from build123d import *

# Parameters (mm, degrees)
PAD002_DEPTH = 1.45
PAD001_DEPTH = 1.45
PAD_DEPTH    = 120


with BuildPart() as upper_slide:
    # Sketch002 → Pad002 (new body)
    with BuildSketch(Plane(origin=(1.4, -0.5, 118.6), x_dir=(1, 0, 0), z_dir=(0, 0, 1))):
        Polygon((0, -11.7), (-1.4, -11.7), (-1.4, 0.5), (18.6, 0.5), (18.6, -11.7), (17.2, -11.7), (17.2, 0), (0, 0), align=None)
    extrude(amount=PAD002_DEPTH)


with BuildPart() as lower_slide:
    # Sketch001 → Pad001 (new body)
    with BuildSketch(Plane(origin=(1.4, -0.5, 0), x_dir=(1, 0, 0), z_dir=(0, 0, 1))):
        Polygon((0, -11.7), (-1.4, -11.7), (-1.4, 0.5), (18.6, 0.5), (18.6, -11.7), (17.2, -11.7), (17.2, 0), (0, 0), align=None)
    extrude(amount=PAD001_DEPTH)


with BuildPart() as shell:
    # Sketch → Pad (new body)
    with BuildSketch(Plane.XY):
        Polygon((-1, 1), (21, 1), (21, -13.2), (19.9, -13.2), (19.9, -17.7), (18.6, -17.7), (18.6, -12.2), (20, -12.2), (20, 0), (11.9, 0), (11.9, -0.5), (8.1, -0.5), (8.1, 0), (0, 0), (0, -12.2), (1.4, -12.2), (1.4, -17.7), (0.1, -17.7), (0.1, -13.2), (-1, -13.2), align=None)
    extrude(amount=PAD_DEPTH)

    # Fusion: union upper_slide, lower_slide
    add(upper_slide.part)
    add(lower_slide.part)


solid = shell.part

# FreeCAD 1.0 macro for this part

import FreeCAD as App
import Part
import Sketcher

doc = App.newDocument("Part")
body = doc.addObject("PartDesign::Body", "Body")

# Sketch on XY plane
sketch1 = body.newObject("Sketcher::SketchObject", "Sketch")
sketch1.AttachmentSupport = (doc.getObject("XY_Plane"), [""])
sketch1.MapMode = "FlatFace"
sketch1.AttachmentOffset = App.Placement(App.Vector(0, 0, 118.6), App.Rotation())
sketch1.addGeometry([
    Part.LineSegment(App.Vector(0, -12.2, 0), App.Vector(1.4, -12.2, 0)),  # 0
    Part.LineSegment(App.Vector(1.4, -12.2, 0), App.Vector(1.4, -0.5, 0)),  # 1
    Part.LineSegment(App.Vector(1.4, -0.5, 0), App.Vector(18.6, -0.5, 0)),  # 2
    Part.LineSegment(App.Vector(18.6, -0.5, 0), App.Vector(18.6, -12.2, 0)),  # 3
    Part.LineSegment(App.Vector(18.6, -12.2, 0), App.Vector(20, -12.2, 0)),  # 4
    Part.LineSegment(App.Vector(20, -12.2, 0), App.Vector(20, 0, 0)),  # 5
    Part.LineSegment(App.Vector(20, 0, 0), App.Vector(0, 0, 0)),  # 6
    Part.LineSegment(App.Vector(0, 0, 0), App.Vector(0, -12.2, 0)),  # 7
], False)
sketch1.addConstraint([
    Sketcher.Constraint("Coincident", 0, 2, 1, 1),
    Sketcher.Constraint("Coincident", 1, 2, 2, 1),
    Sketcher.Constraint("Coincident", 2, 2, 3, 1),
    Sketcher.Constraint("Coincident", 3, 2, 4, 1),
    Sketcher.Constraint("Coincident", 4, 2, 5, 1),
    Sketcher.Constraint("Coincident", 5, 2, 6, 1),
    Sketcher.Constraint("Coincident", 6, 2, 7, 1),
    Sketcher.Constraint("Coincident", 7, 2, 0, 1),
    Sketcher.Constraint("Horizontal", 0),
    Sketcher.Constraint("Vertical", 1),
    Sketcher.Constraint("Horizontal", 2),
    Sketcher.Constraint("Vertical", 3),
    Sketcher.Constraint("Horizontal", 4),
    Sketcher.Constraint("Vertical", 5),
    Sketcher.Constraint("Horizontal", 6),
    Sketcher.Constraint("Vertical", 7),
    Sketcher.Constraint("Coincident", 6, 2, -1, 1),
    Sketcher.Constraint("Horizontal", 0, 2, 3, 2),
    Sketcher.Constraint("Equal", 0, 4),
    Sketcher.Constraint("DistanceX", 6, 2, 6, 1, 20.0),
    Sketcher.Constraint("DistanceX", 0, 1, 0, 2, 1.4),
    Sketcher.Constraint("DistanceY", 1, 1, 1, 2, 11.7),
    Sketcher.Constraint("DistanceY", 5, 1, 5, 2, 12.2),
])
pad1 = body.newObject("PartDesign::Pad", "Pad")
pad1.Profile = sketch1
pad1.Length = 1.45
body2 = doc.addObject("PartDesign::Body", "Body001")

# Sketch on XY plane
sketch2 = body2.newObject("Sketcher::SketchObject", "Sketch001")
sketch2.AttachmentSupport = (doc.getObject("XY_Plane001"), [""])
sketch2.MapMode = "FlatFace"
sketch2.addGeometry([
    Part.LineSegment(App.Vector(0, -12.2, 0), App.Vector(1.4, -12.2, 0)),  # 0
    Part.LineSegment(App.Vector(1.4, -12.2, 0), App.Vector(1.4, -0.5, 0)),  # 1
    Part.LineSegment(App.Vector(1.4, -0.5, 0), App.Vector(18.6, -0.5, 0)),  # 2
    Part.LineSegment(App.Vector(18.6, -0.5, 0), App.Vector(18.6, -12.2, 0)),  # 3
    Part.LineSegment(App.Vector(18.6, -12.2, 0), App.Vector(20, -12.2, 0)),  # 4
    Part.LineSegment(App.Vector(20, -12.2, 0), App.Vector(20, 0, 0)),  # 5
    Part.LineSegment(App.Vector(20, 0, 0), App.Vector(0, 0, 0)),  # 6
    Part.LineSegment(App.Vector(0, 0, 0), App.Vector(0, -12.2, 0)),  # 7
], False)
sketch2.addConstraint([
    Sketcher.Constraint("Coincident", 0, 2, 1, 1),
    Sketcher.Constraint("Coincident", 1, 2, 2, 1),
    Sketcher.Constraint("Coincident", 2, 2, 3, 1),
    Sketcher.Constraint("Coincident", 3, 2, 4, 1),
    Sketcher.Constraint("Coincident", 4, 2, 5, 1),
    Sketcher.Constraint("Coincident", 5, 2, 6, 1),
    Sketcher.Constraint("Coincident", 6, 2, 7, 1),
    Sketcher.Constraint("Coincident", 7, 2, 0, 1),
    Sketcher.Constraint("Horizontal", 0),
    Sketcher.Constraint("Vertical", 1),
    Sketcher.Constraint("Horizontal", 2),
    Sketcher.Constraint("Vertical", 3),
    Sketcher.Constraint("Horizontal", 4),
    Sketcher.Constraint("Vertical", 5),
    Sketcher.Constraint("Horizontal", 6),
    Sketcher.Constraint("Vertical", 7),
    Sketcher.Constraint("Coincident", 6, 2, -1, 1),
    Sketcher.Constraint("Horizontal", 0, 2, 3, 2),
    Sketcher.Constraint("Equal", 0, 4),
    Sketcher.Constraint("DistanceX", 6, 2, 6, 1, 20.0),
    Sketcher.Constraint("DistanceX", 0, 1, 0, 2, 1.4),
    Sketcher.Constraint("DistanceY", 1, 1, 1, 2, 11.7),
    Sketcher.Constraint("DistanceY", 5, 1, 5, 2, 12.2),
])
pad2 = body2.newObject("PartDesign::Pad", "Pad001")
pad2.Profile = sketch2
pad2.Length = 1.45
body3 = doc.addObject("PartDesign::Body", "Body002")

# Sketch on XY plane
sketch3 = body3.newObject("Sketcher::SketchObject", "Sketch002")
sketch3.AttachmentSupport = (doc.getObject("XY_Plane002"), [""])
sketch3.MapMode = "FlatFace"
sketch3.addGeometry([
    Part.LineSegment(App.Vector(21, 1, 0), App.Vector(-1, 1, 0)),  # 0
    Part.LineSegment(App.Vector(-1, 1, 0), App.Vector(-1, -13.2, 0)),  # 1
    Part.LineSegment(App.Vector(-1, -13.2, 0), App.Vector(0.1, -13.2, 0)),  # 2
    Part.LineSegment(App.Vector(0.1, -13.2, 0), App.Vector(0.1, -17.7, 0)),  # 3
    Part.LineSegment(App.Vector(0.1, -17.7, 0), App.Vector(1.4, -17.7, 0)),  # 4
    Part.LineSegment(App.Vector(1.4, -17.7, 0), App.Vector(1.4, -12.2, 0)),  # 5
    Part.LineSegment(App.Vector(1.4, -12.2, 0), App.Vector(0, -12.2, 0)),  # 6
    Part.LineSegment(App.Vector(0, -12.2, 0), App.Vector(0, 0, 0)),  # 7
    Part.LineSegment(App.Vector(0, 0, 0), App.Vector(8.1, 0, 0)),  # 8
    Part.LineSegment(App.Vector(8.1, 0, 0), App.Vector(8.1, -0.5, 0)),  # 9
    Part.LineSegment(App.Vector(8.1, -0.5, 0), App.Vector(11.9, -0.5, 0)),  # 10
    Part.LineSegment(App.Vector(11.9, -0.5, 0), App.Vector(11.9, 0, 0)),  # 11
    Part.LineSegment(App.Vector(11.9, 0, 0), App.Vector(20, 0, 0)),  # 12
    Part.LineSegment(App.Vector(20, 0, 0), App.Vector(20, -12.2, 0)),  # 13
    Part.LineSegment(App.Vector(20, -12.2, 0), App.Vector(18.6, -12.2, 0)),  # 14
    Part.LineSegment(App.Vector(18.6, -12.2, 0), App.Vector(18.6, -17.7, 0)),  # 15
    Part.LineSegment(App.Vector(18.6, -17.7, 0), App.Vector(19.9, -17.7, 0)),  # 16
    Part.LineSegment(App.Vector(19.9, -17.7, 0), App.Vector(19.9, -13.2, 0)),  # 17
    Part.LineSegment(App.Vector(19.9, -13.2, 0), App.Vector(21, -13.2, 0)),  # 18
    Part.LineSegment(App.Vector(21, -13.2, 0), App.Vector(21, 1, 0)),  # 19
], False)
sketch3.addConstraint([
    Sketcher.Constraint("Coincident", 0, 2, 1, 1),
    Sketcher.Constraint("Coincident", 1, 2, 2, 1),
    Sketcher.Constraint("Coincident", 2, 2, 3, 1),
    Sketcher.Constraint("Coincident", 3, 2, 4, 1),
    Sketcher.Constraint("Coincident", 4, 2, 5, 1),
    Sketcher.Constraint("Coincident", 5, 2, 6, 1),
    Sketcher.Constraint("Coincident", 6, 2, 7, 1),
    Sketcher.Constraint("Coincident", 7, 2, 8, 1),
    Sketcher.Constraint("Coincident", 8, 2, 9, 1),
    Sketcher.Constraint("Coincident", 9, 2, 10, 1),
    Sketcher.Constraint("Coincident", 10, 2, 11, 1),
    Sketcher.Constraint("Coincident", 11, 2, 12, 1),
    Sketcher.Constraint("Coincident", 12, 2, 13, 1),
    Sketcher.Constraint("Coincident", 13, 2, 14, 1),
    Sketcher.Constraint("Coincident", 14, 2, 15, 1),
    Sketcher.Constraint("Coincident", 15, 2, 16, 1),
    Sketcher.Constraint("Coincident", 16, 2, 17, 1),
    Sketcher.Constraint("Coincident", 17, 2, 18, 1),
    Sketcher.Constraint("Coincident", 18, 2, 19, 1),
    Sketcher.Constraint("Coincident", 19, 2, 0, 1),
    Sketcher.Constraint("Horizontal", 0),
    Sketcher.Constraint("Vertical", 1),
    Sketcher.Constraint("Horizontal", 2),
    Sketcher.Constraint("Vertical", 3),
    Sketcher.Constraint("Horizontal", 4),
    Sketcher.Constraint("Vertical", 5),
    Sketcher.Constraint("Horizontal", 6),
    Sketcher.Constraint("Vertical", 7),
    Sketcher.Constraint("Horizontal", 8),
    Sketcher.Constraint("Vertical", 9),
    Sketcher.Constraint("Horizontal", 10),
    Sketcher.Constraint("Vertical", 11),
    Sketcher.Constraint("Horizontal", 12),
    Sketcher.Constraint("Vertical", 13),
    Sketcher.Constraint("Horizontal", 14),
    Sketcher.Constraint("Vertical", 15),
    Sketcher.Constraint("Horizontal", 16),
    Sketcher.Constraint("Vertical", 17),
    Sketcher.Constraint("Horizontal", 18),
    Sketcher.Constraint("Vertical", 19),
    Sketcher.Constraint("Coincident", 7, 2, -1, 1),
    Sketcher.Constraint("PointOnObject", 11, 2, -1),
    Sketcher.Constraint("Horizontal", 6, 2, 13, 2),
    Sketcher.Constraint("Horizontal", 4, 2, 15, 2),
    Sketcher.Constraint("Horizontal", 2, 2, 17, 2),
    Sketcher.Constraint("Equal", 8, 12),
    Sketcher.Constraint("Equal", 6, 14),
    Sketcher.Constraint("Equal", 4, 16),
    Sketcher.Constraint("Equal", 2, 18),
    Sketcher.Constraint("DistanceX", 0, 2, 0, 1, 22.0),
    Sketcher.Constraint("DistanceX", 2, 1, 2, 2, 1.1),
    Sketcher.Constraint("DistanceX", 4, 1, 4, 2, 1.3),
    Sketcher.Constraint("DistanceX", 6, 2, 6, 1, 1.4),
    Sketcher.Constraint("DistanceX", 8, 1, 8, 2, 8.1),
    Sketcher.Constraint("DistanceY", 1, 2, 1, 1, 14.2),
    Sketcher.Constraint("DistanceY", 3, 2, 3, 1, 4.5),
    Sketcher.Constraint("DistanceY", 5, 1, 5, 2, 5.5),
    Sketcher.Constraint("DistanceY", 7, 1, 7, 2, 12.2),
    Sketcher.Constraint("DistanceY", 9, 2, 9, 1, 0.5),
])
pad3 = body3.newObject("PartDesign::Pad", "Pad002")
pad3.Profile = sketch3
pad3.Length = 120
doc.recompute()

boolean = body3.newObject("PartDesign::Boolean", "Boolean")
boolean.Type = "Fuse"
boolean.addObjects([body])
doc.recompute()

boolean2 = body3.newObject("PartDesign::Boolean", "Boolean001")
boolean2.Type = "Fuse"
boolean2.addObjects([body2])

doc.recompute()
